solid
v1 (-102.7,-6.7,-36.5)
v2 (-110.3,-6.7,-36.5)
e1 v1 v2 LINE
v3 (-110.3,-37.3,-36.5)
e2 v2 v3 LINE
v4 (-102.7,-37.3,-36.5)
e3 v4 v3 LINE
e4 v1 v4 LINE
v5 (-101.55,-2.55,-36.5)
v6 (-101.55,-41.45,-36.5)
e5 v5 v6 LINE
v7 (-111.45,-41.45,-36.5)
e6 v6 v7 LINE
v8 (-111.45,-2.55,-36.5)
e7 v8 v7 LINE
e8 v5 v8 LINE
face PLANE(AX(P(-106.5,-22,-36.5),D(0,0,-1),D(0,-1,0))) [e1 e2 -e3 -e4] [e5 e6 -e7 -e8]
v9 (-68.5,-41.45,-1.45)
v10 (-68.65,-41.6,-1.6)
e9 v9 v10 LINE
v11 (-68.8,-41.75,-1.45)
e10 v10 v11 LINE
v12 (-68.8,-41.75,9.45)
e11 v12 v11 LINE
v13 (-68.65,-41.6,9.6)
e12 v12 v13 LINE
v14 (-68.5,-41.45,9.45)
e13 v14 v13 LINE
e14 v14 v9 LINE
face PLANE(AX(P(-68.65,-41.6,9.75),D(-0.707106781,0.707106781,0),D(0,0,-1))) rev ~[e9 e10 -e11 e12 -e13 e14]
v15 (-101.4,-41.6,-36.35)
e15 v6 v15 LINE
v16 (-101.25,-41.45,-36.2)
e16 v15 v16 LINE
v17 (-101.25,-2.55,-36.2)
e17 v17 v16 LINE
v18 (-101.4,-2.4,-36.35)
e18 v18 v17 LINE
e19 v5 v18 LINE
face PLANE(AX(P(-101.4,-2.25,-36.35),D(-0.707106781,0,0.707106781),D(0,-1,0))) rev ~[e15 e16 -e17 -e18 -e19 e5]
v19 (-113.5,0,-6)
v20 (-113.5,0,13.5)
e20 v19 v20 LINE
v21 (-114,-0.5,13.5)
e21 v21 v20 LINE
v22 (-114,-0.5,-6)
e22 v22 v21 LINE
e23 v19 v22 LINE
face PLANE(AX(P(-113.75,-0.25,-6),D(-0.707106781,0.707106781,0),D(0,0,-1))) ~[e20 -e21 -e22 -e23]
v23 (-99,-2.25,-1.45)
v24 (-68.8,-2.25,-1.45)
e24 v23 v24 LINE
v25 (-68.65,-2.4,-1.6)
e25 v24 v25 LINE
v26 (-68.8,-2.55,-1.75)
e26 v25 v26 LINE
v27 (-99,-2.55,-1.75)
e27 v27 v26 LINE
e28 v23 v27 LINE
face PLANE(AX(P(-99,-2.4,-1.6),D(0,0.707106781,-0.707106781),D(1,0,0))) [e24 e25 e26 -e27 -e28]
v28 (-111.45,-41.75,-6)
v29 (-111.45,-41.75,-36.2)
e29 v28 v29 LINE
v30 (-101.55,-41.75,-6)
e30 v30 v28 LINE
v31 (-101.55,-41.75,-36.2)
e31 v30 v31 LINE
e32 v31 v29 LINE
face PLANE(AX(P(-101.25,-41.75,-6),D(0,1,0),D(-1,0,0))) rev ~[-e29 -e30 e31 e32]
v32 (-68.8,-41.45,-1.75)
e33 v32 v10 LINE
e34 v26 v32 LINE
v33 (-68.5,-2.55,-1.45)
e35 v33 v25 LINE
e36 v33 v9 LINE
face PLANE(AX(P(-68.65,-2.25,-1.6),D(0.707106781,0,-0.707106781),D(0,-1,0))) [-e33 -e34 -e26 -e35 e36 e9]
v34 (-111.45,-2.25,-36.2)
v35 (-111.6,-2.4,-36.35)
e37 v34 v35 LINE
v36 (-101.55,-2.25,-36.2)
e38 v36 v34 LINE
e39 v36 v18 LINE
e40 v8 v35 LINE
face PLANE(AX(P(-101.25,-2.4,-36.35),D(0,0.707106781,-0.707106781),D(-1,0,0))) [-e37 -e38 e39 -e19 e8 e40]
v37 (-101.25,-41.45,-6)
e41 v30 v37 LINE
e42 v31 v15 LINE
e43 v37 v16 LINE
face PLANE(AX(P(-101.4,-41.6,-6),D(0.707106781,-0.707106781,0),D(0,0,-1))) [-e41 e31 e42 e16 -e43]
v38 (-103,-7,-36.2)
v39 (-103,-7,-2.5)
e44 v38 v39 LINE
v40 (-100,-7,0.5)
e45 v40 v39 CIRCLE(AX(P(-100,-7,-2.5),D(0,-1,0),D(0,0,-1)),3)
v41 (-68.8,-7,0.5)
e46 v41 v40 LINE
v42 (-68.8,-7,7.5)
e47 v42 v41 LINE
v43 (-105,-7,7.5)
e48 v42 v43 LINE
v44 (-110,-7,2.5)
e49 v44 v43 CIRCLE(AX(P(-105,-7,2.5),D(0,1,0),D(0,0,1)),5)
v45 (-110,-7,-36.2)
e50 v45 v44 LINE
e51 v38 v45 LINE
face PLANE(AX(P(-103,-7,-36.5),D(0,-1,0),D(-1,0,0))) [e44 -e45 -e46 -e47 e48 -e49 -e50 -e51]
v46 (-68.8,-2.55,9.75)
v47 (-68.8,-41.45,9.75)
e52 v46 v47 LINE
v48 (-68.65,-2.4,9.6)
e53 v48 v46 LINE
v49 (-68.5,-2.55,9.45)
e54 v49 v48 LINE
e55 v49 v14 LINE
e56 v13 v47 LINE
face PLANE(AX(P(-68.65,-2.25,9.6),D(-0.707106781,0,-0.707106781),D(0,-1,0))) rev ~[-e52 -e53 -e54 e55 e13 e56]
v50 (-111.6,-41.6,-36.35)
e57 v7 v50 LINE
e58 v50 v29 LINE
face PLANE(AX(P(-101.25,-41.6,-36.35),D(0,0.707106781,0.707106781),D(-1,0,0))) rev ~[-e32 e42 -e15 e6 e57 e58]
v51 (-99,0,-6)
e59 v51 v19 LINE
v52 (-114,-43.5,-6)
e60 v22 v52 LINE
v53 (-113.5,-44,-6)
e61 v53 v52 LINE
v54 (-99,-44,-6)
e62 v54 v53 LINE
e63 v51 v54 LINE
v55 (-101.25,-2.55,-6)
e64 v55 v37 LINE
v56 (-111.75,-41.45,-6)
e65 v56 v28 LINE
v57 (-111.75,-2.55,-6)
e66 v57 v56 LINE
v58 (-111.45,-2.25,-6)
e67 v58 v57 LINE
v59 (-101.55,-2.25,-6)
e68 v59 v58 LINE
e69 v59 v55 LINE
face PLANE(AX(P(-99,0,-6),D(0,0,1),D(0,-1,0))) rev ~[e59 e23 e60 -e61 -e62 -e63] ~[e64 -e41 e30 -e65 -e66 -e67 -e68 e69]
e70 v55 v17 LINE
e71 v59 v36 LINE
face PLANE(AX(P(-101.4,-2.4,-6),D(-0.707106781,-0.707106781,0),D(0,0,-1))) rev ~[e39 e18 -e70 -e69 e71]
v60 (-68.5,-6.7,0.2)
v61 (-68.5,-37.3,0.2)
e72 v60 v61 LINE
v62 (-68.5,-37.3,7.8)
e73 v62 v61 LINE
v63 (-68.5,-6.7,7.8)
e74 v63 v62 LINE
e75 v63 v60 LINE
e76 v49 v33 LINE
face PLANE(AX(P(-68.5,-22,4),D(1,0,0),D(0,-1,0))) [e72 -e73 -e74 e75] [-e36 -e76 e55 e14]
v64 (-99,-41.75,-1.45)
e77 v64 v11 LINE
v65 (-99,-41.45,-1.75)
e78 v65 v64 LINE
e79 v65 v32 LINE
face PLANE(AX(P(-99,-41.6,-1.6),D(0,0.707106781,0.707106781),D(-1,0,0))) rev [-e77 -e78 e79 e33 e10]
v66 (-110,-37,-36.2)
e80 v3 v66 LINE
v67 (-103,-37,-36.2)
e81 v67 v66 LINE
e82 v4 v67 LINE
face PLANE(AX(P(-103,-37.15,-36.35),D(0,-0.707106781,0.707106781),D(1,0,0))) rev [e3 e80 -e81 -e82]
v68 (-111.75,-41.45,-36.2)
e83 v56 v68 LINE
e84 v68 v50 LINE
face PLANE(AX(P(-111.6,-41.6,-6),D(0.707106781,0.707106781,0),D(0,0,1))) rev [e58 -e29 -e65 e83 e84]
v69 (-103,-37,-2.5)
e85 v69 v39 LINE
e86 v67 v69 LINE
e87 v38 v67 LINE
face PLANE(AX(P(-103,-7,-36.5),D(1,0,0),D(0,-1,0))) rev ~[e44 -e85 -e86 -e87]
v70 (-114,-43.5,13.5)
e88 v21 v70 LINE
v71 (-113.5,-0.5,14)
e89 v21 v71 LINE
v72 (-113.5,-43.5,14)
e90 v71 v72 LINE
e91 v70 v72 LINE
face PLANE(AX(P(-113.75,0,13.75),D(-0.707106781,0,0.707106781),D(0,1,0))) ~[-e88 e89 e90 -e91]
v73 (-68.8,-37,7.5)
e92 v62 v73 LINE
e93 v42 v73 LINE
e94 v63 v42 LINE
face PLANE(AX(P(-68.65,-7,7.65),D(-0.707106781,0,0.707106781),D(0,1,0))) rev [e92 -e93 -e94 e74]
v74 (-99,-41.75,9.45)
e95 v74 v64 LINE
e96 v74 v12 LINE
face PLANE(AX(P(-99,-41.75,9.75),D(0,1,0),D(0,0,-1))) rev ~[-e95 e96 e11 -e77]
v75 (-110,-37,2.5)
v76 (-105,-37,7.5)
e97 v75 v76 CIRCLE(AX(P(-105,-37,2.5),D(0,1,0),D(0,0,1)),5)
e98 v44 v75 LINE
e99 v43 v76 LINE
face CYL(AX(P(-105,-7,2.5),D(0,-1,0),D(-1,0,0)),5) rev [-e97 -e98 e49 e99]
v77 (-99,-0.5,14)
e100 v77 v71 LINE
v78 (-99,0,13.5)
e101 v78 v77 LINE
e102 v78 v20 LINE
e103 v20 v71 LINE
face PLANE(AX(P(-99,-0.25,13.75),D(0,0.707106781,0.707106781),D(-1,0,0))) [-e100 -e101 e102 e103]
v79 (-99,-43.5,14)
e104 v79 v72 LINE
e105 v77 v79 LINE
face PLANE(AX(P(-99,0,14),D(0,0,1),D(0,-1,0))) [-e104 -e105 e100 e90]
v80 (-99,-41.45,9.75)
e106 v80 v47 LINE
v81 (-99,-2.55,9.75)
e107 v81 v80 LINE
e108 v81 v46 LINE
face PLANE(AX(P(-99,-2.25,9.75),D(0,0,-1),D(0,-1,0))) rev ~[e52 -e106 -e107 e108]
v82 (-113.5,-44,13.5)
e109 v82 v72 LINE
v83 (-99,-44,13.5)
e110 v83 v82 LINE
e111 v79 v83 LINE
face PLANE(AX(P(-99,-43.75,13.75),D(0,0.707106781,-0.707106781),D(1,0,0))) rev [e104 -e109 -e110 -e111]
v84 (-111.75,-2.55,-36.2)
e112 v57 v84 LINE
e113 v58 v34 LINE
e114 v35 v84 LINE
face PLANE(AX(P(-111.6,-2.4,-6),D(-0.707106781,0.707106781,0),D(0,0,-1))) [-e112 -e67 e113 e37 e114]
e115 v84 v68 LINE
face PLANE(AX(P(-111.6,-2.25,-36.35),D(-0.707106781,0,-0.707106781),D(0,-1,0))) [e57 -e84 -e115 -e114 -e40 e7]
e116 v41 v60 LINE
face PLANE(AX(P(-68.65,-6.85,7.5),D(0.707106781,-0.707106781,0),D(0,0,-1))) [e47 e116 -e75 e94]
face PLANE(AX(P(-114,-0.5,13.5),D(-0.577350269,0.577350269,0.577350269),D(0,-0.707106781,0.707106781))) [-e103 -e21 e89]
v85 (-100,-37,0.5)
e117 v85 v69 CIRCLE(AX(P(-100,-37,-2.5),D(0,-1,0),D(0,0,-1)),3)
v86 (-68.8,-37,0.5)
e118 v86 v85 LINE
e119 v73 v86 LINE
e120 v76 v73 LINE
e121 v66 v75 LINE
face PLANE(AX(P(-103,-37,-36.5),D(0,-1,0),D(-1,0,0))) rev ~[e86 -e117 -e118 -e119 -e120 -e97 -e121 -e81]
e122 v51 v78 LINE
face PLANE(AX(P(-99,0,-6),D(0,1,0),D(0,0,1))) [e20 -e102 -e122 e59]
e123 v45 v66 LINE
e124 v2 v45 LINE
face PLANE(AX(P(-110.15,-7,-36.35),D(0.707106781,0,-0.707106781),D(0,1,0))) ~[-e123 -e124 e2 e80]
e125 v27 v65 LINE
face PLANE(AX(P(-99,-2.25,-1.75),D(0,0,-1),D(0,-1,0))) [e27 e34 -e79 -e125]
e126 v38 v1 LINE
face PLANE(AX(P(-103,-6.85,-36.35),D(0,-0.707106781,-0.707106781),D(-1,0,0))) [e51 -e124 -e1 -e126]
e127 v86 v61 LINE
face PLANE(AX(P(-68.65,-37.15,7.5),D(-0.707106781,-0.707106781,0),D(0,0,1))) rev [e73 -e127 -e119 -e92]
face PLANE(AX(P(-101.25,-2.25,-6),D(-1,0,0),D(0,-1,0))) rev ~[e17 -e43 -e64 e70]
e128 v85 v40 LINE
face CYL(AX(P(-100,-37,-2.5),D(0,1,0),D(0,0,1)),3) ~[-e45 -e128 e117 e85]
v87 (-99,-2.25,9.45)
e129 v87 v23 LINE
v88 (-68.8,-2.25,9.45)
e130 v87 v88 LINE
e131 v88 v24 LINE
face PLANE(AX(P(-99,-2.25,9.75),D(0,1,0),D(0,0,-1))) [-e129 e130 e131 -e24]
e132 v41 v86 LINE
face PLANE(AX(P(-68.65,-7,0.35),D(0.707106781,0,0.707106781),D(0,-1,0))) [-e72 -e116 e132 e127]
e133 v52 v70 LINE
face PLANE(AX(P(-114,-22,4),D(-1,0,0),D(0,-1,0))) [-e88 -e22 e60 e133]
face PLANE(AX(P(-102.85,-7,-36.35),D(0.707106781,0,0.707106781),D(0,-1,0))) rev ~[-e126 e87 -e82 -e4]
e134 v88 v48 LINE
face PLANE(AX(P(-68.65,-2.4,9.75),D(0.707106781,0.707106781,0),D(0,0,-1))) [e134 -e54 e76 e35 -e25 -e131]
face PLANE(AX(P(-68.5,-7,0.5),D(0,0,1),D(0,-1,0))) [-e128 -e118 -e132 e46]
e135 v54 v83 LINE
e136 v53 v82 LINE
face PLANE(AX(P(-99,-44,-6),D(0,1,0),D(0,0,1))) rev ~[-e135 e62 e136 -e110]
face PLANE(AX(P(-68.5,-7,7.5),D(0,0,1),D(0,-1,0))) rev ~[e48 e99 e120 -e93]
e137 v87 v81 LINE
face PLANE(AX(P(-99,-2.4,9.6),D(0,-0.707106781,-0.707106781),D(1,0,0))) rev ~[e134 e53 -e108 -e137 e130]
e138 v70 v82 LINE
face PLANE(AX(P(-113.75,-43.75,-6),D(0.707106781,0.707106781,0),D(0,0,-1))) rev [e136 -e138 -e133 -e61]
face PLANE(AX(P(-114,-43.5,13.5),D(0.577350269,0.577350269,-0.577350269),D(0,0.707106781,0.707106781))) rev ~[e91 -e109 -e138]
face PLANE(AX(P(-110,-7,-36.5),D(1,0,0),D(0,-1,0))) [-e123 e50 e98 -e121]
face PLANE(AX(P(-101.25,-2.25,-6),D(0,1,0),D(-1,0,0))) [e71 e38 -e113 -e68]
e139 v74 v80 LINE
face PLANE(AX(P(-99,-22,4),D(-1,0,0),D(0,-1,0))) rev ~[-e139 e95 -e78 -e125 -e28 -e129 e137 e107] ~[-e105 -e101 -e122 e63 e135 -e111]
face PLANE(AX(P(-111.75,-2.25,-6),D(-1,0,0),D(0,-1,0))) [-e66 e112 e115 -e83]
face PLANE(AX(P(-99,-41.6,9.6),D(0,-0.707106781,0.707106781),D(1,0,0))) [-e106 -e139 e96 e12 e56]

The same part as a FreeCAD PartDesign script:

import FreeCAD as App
import Part
import Sketcher

V = App.Vector


def edges_at(feature, points):
    """Names of the edges that pass closest to the given points."""
    edges = feature.Shape.Edges
    near = lambda p: min(range(len(edges)), key=lambda i: edges[i].distToShape(Part.Vertex(*p))[0])
    return sorted({f"Edge{near(p) + 1}" for p in points})

doc = App.newDocument("Part")
body = doc.addObject("PartDesign::Body", "Body")

# Sketch on YZ plane
sketch1 = doc.addObject("Sketcher::SketchObject", "Sketch")
body.addObject(sketch1)
sketch1.AttachmentSupport = (doc.YZ_Plane, [""])
sketch1.MapMode = "FlatFace"
sketch1.addGeometry(Part.LineSegment(V(-22, 10, 0), V(-22, -10, 0)), False)
sketch1.addGeometry(Part.LineSegment(V(-22, -10, 0), V(22, -10, 0)), False)
sketch1.addGeometry(Part.LineSegment(V(22, -10, 0), V(22, 10, 0)), False)
sketch1.addGeometry(Part.LineSegment(V(22, 10, 0), V(-22, 10, 0)), False)
sketch1.addConstraint(Sketcher.Constraint("Coincident", 0, 2, 1, 1))
sketch1.addConstraint(Sketcher.Constraint("Coincident", 1, 2, 2, 1))
sketch1.addConstraint(Sketcher.Constraint("Coincident", 2, 2, 3, 1))
sketch1.addConstraint(Sketcher.Constraint("Coincident", 3, 2, 0, 1))
sketch1.addConstraint(Sketcher.Constraint("Vertical", 0))
sketch1.addConstraint(Sketcher.Constraint("Horizontal", 1))
sketch1.addConstraint(Sketcher.Constraint("Vertical", 2))
sketch1.addConstraint(Sketcher.Constraint("Horizontal", 3))
sketch1.addConstraint(Sketcher.Constraint("Symmetric", 0, 2, 2, 2, -1, 1))
sketch1.addConstraint(Sketcher.Constraint("DistanceX", 1, 1, 1, 2, 44.0))
sketch1.addConstraint(Sketcher.Constraint("DistanceY", 0, 2, 0, 1, 20.0))
pad1 = doc.addObject("PartDesign::Pad", "Pad")
body.addObject(pad1)
pad1.Profile = sketch1
pad1.Length = 15

# Sketch on YZ plane
sketch2 = doc.addObject("Sketcher::SketchObject", "Sketch001")
body.addObject(sketch2)
sketch2.AttachmentSupport = (doc.YZ_Plane, [""])
sketch2.MapMode = "FlatFace"
sketch2.addGeometry(Part.LineSegment(V(-20, -6, 0), V(-20, 6, 0)), False)
sketch2.addGeometry(Part.LineSegment(V(-20, 6, 0), V(20, 6, 0)), False)
sketch2.addGeometry(Part.LineSegment(V(20, 6, 0), V(20, -6, 0)), False)
sketch2.addGeometry(Part.LineSegment(V(20, -6, 0), V(-20, -6, 0)), False)
sketch2.addConstraint(Sketcher.Constraint("Coincident", 0, 2, 1, 1))
sketch2.addConstraint(Sketcher.Constraint("Coincident", 1, 2, 2, 1))
sketch2.addConstraint(Sketcher.Constraint("Coincident", 2, 2, 3, 1))
sketch2.addConstraint(Sketcher.Constraint("Coincident", 3, 2, 0, 1))
sketch2.addConstraint(Sketcher.Constraint("Vertical", 0))
sketch2.addConstraint(Sketcher.Constraint("Horizontal", 1))
sketch2.addConstraint(Sketcher.Constraint("Vertical", 2))
sketch2.addConstraint(Sketcher.Constraint("Horizontal", 3))
sketch2.addConstraint(Sketcher.Constraint("Symmetric", 0, 2, 2, 2, -1, 1))
sketch2.addConstraint(Sketcher.Constraint("DistanceX", 1, 1, 1, 2, 39.5))
sketch2.addConstraint(Sketcher.Constraint("DistanceY", 0, 1, 0, 2, 11.5))
pad2 = doc.addObject("PartDesign::Pad", "Pad001")
body.addObject(pad2)
pad2.Profile = sketch2
pad2.Length = 30.5
pad2.Reversed = True

# Sketch on YZ plane
sketch3 = doc.addObject("Sketcher::SketchObject", "Sketch002")
body.addObject(sketch3)
sketch3.AttachmentSupport = (doc.YZ_Plane, [""])
sketch3.MapMode = "FlatFace"
sketch3.AttachmentOffset = App.Placement(V(0, 0, -30.5), App.Rotation())
sketch3.addGeometry(Part.LineSegment(V(-15, -4, 0), V(-15, 4, 0)), False)
sketch3.addGeometry(Part.LineSegment(V(-15, 4, 0), V(15, 4, 0)), False)
sketch3.addGeometry(Part.LineSegment(V(15, 4, 0), V(15, -4, 0)), False)
sketch3.addGeometry(Part.LineSegment(V(15, -4, 0), V(-15, -4, 0)), False)
sketch3.addConstraint(Sketcher.Constraint("Coincident", 0, 2, 1, 1))
sketch3.addConstraint(Sketcher.Constraint("Coincident", 1, 2, 2, 1))
sketch3.addConstraint(Sketcher.Constraint("Coincident", 2, 2, 3, 1))
sketch3.addConstraint(Sketcher.Constraint("Coincident", 3, 2, 0, 1))
sketch3.addConstraint(Sketcher.Constraint("Vertical", 0))
sketch3.addConstraint(Sketcher.Constraint("Horizontal", 1))
sketch3.addConstraint(Sketcher.Constraint("Vertical", 2))
sketch3.addConstraint(Sketcher.Constraint("Horizontal", 3))
sketch3.addConstraint(Sketcher.Constraint("Symmetric", 0, 2, 2, 2, -1, 1))
sketch3.addConstraint(Sketcher.Constraint("DistanceX", 1, 1, 1, 2, 30.0))
sketch3.addConstraint(Sketcher.Constraint("DistanceY", 0, 1, 0, 2, 7.0))
pocket1 = doc.addObject("PartDesign::Pocket", "Pocket")
body.addObject(pocket1)
pocket1.Profile = sketch3
pocket1.Length = 41.5
pocket1.Reversed = True

# Sketch on XY plane
sketch4 = doc.addObject("Sketcher::SketchObject", "Sketch003")
body.addObject(sketch4)
sketch4.AttachmentSupport = (doc.XY_Plane, [""])
sketch4.MapMode = "FlatFace"
sketch4.AttachmentOffset = App.Placement(V(0, 0, -10), App.Rotation())
sketch4.addGeometry(Part.LineSegment(V(13, -20, 0), V(2, -20, 0)), False)
sketch4.addGeometry(Part.LineSegment(V(2, -20, 0), V(2, 20, 0)), False)
sketch4.addGeometry(Part.LineSegment(V(2, 20, 0), V(13, 20, 0)), False)
sketch4.addGeometry(Part.LineSegment(V(13, 20, 0), V(13, -20, 0)), False)
sketch4.addConstraint(Sketcher.Constraint("Coincident", 0, 2, 1, 1))
sketch4.addConstraint(Sketcher.Constraint("Coincident", 1, 2, 2, 1))
sketch4.addConstraint(Sketcher.Constraint("Coincident", 2, 2, 3, 1))
sketch4.addConstraint(Sketcher.Constraint("Coincident", 3, 2, 0, 1))
sketch4.addConstraint(Sketcher.Constraint("Horizontal", 0))
sketch4.addConstraint(Sketcher.Constraint("Vertical", 1))
sketch4.addConstraint(Sketcher.Constraint("Horizontal", 2))
sketch4.addConstraint(Sketcher.Constraint("Vertical", 3))
sketch4.addConstraint(Sketcher.Constraint("DistanceX", 0, 2, 0, 1, 10.5))
sketch4.addConstraint(Sketcher.Constraint("DistanceY", 1, 1, 1, 2, 39.5))
sketch4.addConstraint(Sketcher.Constraint("DistanceX", -1, 1, 0, 2, 2.25))
sketch4.addConstraint(Sketcher.Constraint("DistanceY", 0, 2, -1, 1, 19.75))
pad3 = doc.addObject("PartDesign::Pad", "Pad002")
body.addObject(pad3)
pad3.Profile = sketch4
pad3.Length = 30.5
pad3.Reversed = True

# Sketch on XY plane
sketch5 = doc.addObject("Sketcher::SketchObject", "Sketch004")
body.addObject(sketch5)
sketch5.AttachmentSupport = (doc.XY_Plane, [""])
sketch5.MapMode = "FlatFace"
sketch5.AttachmentOffset = App.Placement(V(0, 0, -40.5), App.Rotation())
sketch5.addGeometry(Part.LineSegment(V(11, -15, 0), V(4, -15, 0)), False)
sketch5.addGeometry(Part.LineSegment(V(4, -15, 0), V(4, 15, 0)), False)
sketch5.addGeometry(Part.LineSegment(V(4, 15, 0), V(11, 15, 0)), False)
sketch5.addGeometry(Part.LineSegment(V(11, 15, 0), V(11, -15, 0)), False)
sketch5.addConstraint(Sketcher.Constraint("Coincident", 0, 2, 1, 1))
sketch5.addConstraint(Sketcher.Constraint("Coincident", 1, 2, 2, 1))
sketch5.addConstraint(Sketcher.Constraint("Coincident", 2, 2, 3, 1))
sketch5.addConstraint(Sketcher.Constraint("Coincident", 3, 2, 0, 1))
sketch5.addConstraint(Sketcher.Constraint("Horizontal", 0))
sketch5.addConstraint(Sketcher.Constraint("Vertical", 1))
sketch5.addConstraint(Sketcher.Constraint("Horizontal", 2))
sketch5.addConstraint(Sketcher.Constraint("Vertical", 3))
sketch5.addConstraint(Sketcher.Constraint("DistanceX", 0, 2, 0, 1, 7.0))
sketch5.addConstraint(Sketcher.Constraint("DistanceY", 1, 1, 1, 2, 30.0))
sketch5.addConstraint(Sketcher.Constraint("DistanceX", -1, 1, 0, 2, 4.0))
sketch5.addConstraint(Sketcher.Constraint("DistanceY", 0, 2, -1, 1, 15.0))
pocket2 = doc.addObject("PartDesign::Pocket", "Pocket001")
body.addObject(pocket2)
pocket2.Profile = sketch5
pocket2.Length = 44
pocket2.Reversed = True
doc.recompute()

fillet = doc.addObject("PartDesign::Fillet", "Fillet")
body.addObject(fillet)
fillet.Base = (pocket2, edges_at(pocket2, [(11, 0, 3.5)]))
fillet.Radius = 5
doc.recompute()

fillet2 = doc.addObject("PartDesign::Fillet", "Fillet001")
body.addObject(fillet2)
fillet2.Base = (fillet, edges_at(fillet, [(4, 0, -3.5)]))
fillet2.Radius = 3
doc.recompute()

chamfer = doc.addObject("PartDesign::Chamfer", "Chamfer")
body.addObject(chamfer)
chamfer.Base = (fillet2, edges_at(fillet2, [
    (-30.5, 0, -5.75),
    (-30.5, -19.75, 0),
    (-30.5, 19.75, 0),
    (-30.5, 0, 5.75),
    (-30.5, 0, -3.5),
    (-30.5, 15, 0),
    (-30.5, 0, 3.5),
    (-30.5, -15, 0),
    (12.75, 0, -40.5),
    (7.5, -19.75, -40.5),
    (7.5, 19.75, -40.5),
    (2.25, 0, -40.5),
    (11, 0, -40.5),
    (7.5, 15, -40.5),
    (4, 0, -40.5),
    (7.5, -15, -40.5),
]))
chamfer.Size = 0.3
doc.recompute()

chamfer2 = doc.addObject("PartDesign::Chamfer", "Chamfer001")
body.addObject(chamfer2)
chamfer2.Base = (chamfer, edges_at(chamfer, [
    (7.5, -22, 10),
    (15, -22, 0),
    (7.5, 22, 10),
    (15, 22, 0),
    (15, 0, 10),
]))
chamfer2.Size = 0.5
doc.recompute()

chamfer3 = doc.addObject("PartDesign::Chamfer", "Chamfer002")
body.addObject(chamfer3)
chamfer3.Base = (chamfer2, edges_at(chamfer2, [
    (-15.1, -19.75, 5.75),
    (-15.1, -19.75, -5.75),
    (-15.1, 19.75, 5.75),
    (-15.1, 19.75, -5.75),
    (2.25, 19.75, -25.1),
    (12.75, 19.75, -25.1),
    (12.75, -19.75, -25.1),
    (2.25, -19.75, -25.1),
]))
chamfer3.Size = 0.3
body2 = doc.addObject("PartDesign::Body", "Body001")
doc.recompute()

body.Placement = App.Placement(V(-99, -22, 4), App.Rotation(V(0, 0, 1), 180))
boolean = doc.addObject("PartDesign::Boolean", "Boolean")
body2.addObject(boolean)
boolean.Type = "Fuse"
boolean.addObjects([body])

doc.recompute()
